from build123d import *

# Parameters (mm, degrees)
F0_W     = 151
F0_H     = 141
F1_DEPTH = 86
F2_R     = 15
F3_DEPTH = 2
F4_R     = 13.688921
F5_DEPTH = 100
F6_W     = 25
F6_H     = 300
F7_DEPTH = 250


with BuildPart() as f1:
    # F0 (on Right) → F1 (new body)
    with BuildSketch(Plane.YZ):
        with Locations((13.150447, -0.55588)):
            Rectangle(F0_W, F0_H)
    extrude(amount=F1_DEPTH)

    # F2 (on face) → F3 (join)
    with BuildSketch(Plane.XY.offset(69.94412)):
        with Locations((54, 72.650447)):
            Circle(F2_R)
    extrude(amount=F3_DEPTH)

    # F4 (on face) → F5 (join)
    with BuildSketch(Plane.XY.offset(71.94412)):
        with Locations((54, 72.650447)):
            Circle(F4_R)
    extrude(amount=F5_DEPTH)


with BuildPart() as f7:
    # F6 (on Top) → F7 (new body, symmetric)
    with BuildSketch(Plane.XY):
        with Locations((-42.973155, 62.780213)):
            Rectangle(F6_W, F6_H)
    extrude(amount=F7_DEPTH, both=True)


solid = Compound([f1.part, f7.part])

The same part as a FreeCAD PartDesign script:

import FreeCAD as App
import Part
import Sketcher

V = App.Vector


def add_polygon(sketch, points):
    """Adds a closed chain of lines whose ends are joined by coincident constraints."""
    first, n = sketch.GeometryCount, len(points)
    for a, b in zip(points, points[1:] + points[:1]):
        sketch.addGeometry(Part.LineSegment(App.Vector(*a, 0), App.Vector(*b, 0)), False)
    for i in range(n):
        sketch.addConstraint(Sketcher.Constraint("Coincident", first + i, 2, first + (i + 1) % n, 1))

doc = App.newDocument("Part")
body = doc.addObject("PartDesign::Body", "Body")

sketch1 = body.newObject("Sketcher::SketchObject", "Sketch")
sketch1.AttachmentSupport = (doc.getObject("YZ_Plane"), [""])
sketch1.MapMode = "FlatFace"
add_polygon(sketch1, [(-62, 70), (-62, -71), (89, -71), (89, 70)])
sketch1.addConstraint([
    Sketcher.Constraint("Vertical", 0),
    Sketcher.Constraint("Horizontal", 1),
    Sketcher.Constraint("Vertical", 2),
    Sketcher.Constraint("Horizontal", 3),
    Sketcher.Constraint("DistanceX", 1, 1, 1, 2, 151.0),
    Sketcher.Constraint("DistanceY", 0, 2, 0, 1, 141.0),
    Sketcher.Constraint("DistanceY", 0, 2, -1, 1, 71.05588),
    Sketcher.Constraint("DistanceX", 0, 2, -1, 1, 62.349553),
])
pad1 = body.newObject("PartDesign::Pad", "Pad")
pad1.Profile = sketch1
pad1.Length = 86

sketch2 = body.newObject("Sketcher::SketchObject", "Sketch001")
sketch2.AttachmentSupport = (doc.getObject("XY_Plane"), [""])
sketch2.MapMode = "FlatFace"
sketch2.AttachmentOffset = App.Placement(V(0, 0, 69.94412), App.Rotation())
sketch2.addGeometry(Part.Circle(V(54, 73, 0), V(0, 0, 1), 15), False)
sketch2.addConstraint([
    Sketcher.Constraint("Diameter", 0, 30.0),
    Sketcher.Constraint("DistanceX", -1, 1, 0, 3, 54.0),
    Sketcher.Constraint("DistanceY", -1, 1, 0, 3, 72.650447),
])
pad2 = body.newObject("PartDesign::Pad", "Pad001")
pad2.Profile = sketch2
pad2.Length = 2

sketch3 = body.newObject("Sketcher::SketchObject", "Sketch002")
sketch3.AttachmentSupport = (doc.getObject("XY_Plane"), [""])
sketch3.MapMode = "FlatFace"
sketch3.AttachmentOffset = App.Placement(V(0, 0, 71.94412), App.Rotation())
sketch3.addGeometry(Part.Circle(V(54, 73, 0), V(0, 0, 1), 14), False)
sketch3.addConstraint([
    Sketcher.Constraint("DistanceX", -1, 1, 0, 3, 54.0),
    Sketcher.Constraint("Diameter", 0, 27.377842),
    Sketcher.Constraint("DistanceY", -1, 1, 0, 3, 72.650447),
])
pad3 = body.newObject("PartDesign::Pad", "Pad002")
pad3.Profile = sketch3
pad3.Length = 100
body2 = doc.addObject("PartDesign::Body", "Body001")

sketch4 = body2.newObject("Sketcher::SketchObject", "Sketch003")
sketch4.AttachmentSupport = (doc.getObject("XY_Plane001"), [""])
sketch4.MapMode = "FlatFace"
add_polygon(sketch4, [(-55, 213), (-55, -87), (-30, -87), (-30, 213)])
sketch4.addConstraint([
    Sketcher.Constraint("Vertical", 0),
    Sketcher.Constraint("Horizontal", 1),
    Sketcher.Constraint("Vertical", 2),
    Sketcher.Constraint("Horizontal", 3),
    Sketcher.Constraint("DistanceX", 1, 1, 1, 2, 25.0),
    Sketcher.Constraint("DistanceY", 0, 2, 0, 1, 300.0),
    Sketcher.Constraint("DistanceX", 0, 2, -1, 1, 55.473155),
    Sketcher.Constraint("DistanceY", 0, 2, -1, 1, 87.219787),
])
pad4 = body2.newObject("PartDesign::Pad", "Pad003")
pad4.Profile = sketch4
pad4.Length = 500
pad4.Midplane = True

doc.recompute()
